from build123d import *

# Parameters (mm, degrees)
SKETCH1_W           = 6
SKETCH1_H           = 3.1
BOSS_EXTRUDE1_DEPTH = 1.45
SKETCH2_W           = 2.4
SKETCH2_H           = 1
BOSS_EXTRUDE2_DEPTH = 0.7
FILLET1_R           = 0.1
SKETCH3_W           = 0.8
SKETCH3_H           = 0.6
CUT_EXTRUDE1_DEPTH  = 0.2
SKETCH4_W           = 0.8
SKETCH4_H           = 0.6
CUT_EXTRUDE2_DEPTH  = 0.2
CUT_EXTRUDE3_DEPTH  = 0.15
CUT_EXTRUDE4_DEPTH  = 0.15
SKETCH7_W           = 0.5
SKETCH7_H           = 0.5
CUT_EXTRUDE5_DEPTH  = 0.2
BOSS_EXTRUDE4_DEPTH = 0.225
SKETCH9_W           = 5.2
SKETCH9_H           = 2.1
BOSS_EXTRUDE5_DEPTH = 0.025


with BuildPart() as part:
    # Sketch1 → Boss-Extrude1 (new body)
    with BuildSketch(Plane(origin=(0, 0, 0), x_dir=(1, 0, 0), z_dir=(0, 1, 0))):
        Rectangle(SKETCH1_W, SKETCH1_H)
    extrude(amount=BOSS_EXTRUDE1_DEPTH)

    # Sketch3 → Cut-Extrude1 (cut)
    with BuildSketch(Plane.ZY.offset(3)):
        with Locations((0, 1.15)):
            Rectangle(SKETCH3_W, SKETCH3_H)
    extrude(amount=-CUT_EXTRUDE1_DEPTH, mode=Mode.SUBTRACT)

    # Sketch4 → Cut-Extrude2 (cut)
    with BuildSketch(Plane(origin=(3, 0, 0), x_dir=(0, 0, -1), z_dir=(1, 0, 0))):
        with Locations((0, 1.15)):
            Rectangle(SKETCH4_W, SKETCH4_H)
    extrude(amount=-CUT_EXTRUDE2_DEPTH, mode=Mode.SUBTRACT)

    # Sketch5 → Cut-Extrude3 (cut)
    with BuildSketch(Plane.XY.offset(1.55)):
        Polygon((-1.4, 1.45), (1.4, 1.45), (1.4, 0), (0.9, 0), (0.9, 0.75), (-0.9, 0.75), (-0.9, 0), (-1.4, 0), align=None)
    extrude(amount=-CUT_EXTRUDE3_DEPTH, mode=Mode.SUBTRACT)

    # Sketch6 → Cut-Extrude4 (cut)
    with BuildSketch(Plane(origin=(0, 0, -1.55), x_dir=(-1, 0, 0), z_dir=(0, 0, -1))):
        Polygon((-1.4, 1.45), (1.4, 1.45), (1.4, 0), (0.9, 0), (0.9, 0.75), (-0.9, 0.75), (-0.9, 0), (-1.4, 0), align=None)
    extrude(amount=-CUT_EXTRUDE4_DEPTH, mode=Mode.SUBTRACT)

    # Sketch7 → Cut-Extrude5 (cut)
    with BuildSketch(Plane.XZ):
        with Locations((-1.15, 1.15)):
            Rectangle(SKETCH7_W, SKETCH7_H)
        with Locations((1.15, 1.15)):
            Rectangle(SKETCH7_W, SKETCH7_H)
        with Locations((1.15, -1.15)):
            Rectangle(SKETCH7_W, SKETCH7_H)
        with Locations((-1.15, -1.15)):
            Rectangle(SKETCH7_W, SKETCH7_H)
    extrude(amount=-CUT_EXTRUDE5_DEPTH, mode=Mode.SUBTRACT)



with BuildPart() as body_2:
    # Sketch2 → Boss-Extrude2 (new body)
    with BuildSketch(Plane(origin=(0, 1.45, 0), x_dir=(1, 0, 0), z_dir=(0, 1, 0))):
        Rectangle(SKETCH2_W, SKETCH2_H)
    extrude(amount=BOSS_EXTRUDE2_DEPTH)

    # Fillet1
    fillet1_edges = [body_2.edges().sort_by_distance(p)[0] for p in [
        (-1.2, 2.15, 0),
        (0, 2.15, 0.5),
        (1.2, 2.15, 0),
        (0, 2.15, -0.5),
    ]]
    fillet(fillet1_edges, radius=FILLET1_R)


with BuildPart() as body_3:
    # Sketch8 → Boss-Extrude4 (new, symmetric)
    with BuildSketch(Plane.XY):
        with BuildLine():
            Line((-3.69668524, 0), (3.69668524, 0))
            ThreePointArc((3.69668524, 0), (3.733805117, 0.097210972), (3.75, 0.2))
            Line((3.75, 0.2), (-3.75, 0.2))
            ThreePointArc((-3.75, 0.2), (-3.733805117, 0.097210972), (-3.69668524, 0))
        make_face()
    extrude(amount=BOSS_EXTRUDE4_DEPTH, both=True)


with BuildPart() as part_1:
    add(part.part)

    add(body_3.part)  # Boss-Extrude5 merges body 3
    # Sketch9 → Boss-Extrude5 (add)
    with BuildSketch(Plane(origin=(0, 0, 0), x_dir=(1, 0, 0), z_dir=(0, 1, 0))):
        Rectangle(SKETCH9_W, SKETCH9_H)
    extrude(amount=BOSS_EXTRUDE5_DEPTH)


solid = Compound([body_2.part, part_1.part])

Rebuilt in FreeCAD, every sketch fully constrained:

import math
import FreeCAD as App
import Part
import Sketcher

V = App.Vector
Q = App.Units.Quantity


def edges_at(feature, points):
    """Names of the edges that pass closest to the given points."""
    edges = feature.Shape.Edges
    near = lambda p: min(range(len(edges)), key=lambda i: edges[i].distToShape(Part.Vertex(*p))[0])
    return sorted({f"Edge{near(p) + 1}" for p in points})

doc = App.newDocument("Part")
body = doc.addObject("PartDesign::Body", "Body")

sketch1 = body.newObject("Sketcher::SketchObject", "Sketch")
sketch1.AttachmentSupport = (doc.getObject("XZ_Plane"), [""])
sketch1.MapMode = "FlatFace"
sketch1.addGeometry(Part.LineSegment(V(-3, -1.6, 0), V(-3, 1.6, 0)), False)
sketch1.addGeometry(Part.LineSegment(V(-3, 1.6, 0), V(3, 1.6, 0)), False)
sketch1.addGeometry(Part.LineSegment(V(3, 1.6, 0), V(3, -1.6, 0)), False)
sketch1.addGeometry(Part.LineSegment(V(3, -1.6, 0), V(-3, -1.6, 0)), False)
sketch1.addConstraint(Sketcher.Constraint("Coincident", 0, 2, 1, 1))
sketch1.addConstraint(Sketcher.Constraint("Coincident", 1, 2, 2, 1))
sketch1.addConstraint(Sketcher.Constraint("Coincident", 2, 2, 3, 1))
sketch1.addConstraint(Sketcher.Constraint("Coincident", 3, 2, 0, 1))
sketch1.addConstraint(Sketcher.Constraint("Vertical", 0))
sketch1.addConstraint(Sketcher.Constraint("Horizontal", 1))
sketch1.addConstraint(Sketcher.Constraint("Vertical", 2))
sketch1.addConstraint(Sketcher.Constraint("Horizontal", 3))
sketch1.addConstraint(Sketcher.Constraint("Symmetric", 0, 2, 2, 2, -1, 1))
sketch1.addConstraint(Sketcher.Constraint("DistanceX", 1, 1, 1, 2, Q("6 mm")))
sketch1.addConstraint(Sketcher.Constraint("DistanceY", 0, 1, 0, 2, Q("3.1 mm")))
pad1 = body.newObject("PartDesign::Pad", "Pad")
pad1.Profile = sketch1
pad1.Length = 1.45
pad1.Reversed = True

sketch2 = body.newObject("Sketcher::SketchObject", "Sketch001")
sketch2.AttachmentSupport = (doc.getObject("YZ_Plane"), [""])
sketch2.MapMode = "FlatFace"
sketch2.AttachmentOffset = App.Placement(V(0, 0, -3), App.Rotation())
sketch2.addGeometry(Part.LineSegment(V(1.4, -0.4, 0), V(0.8, -0.4, 0)), False)
sketch2.addGeometry(Part.LineSegment(V(0.8, -0.4, 0), V(0.8, 0.4, 0)), False)
sketch2.addGeometry(Part.LineSegment(V(0.8, 0.4, 0), V(1.4, 0.4, 0)), False)
sketch2.addGeometry(Part.LineSegment(V(1.4, 0.4, 0), V(1.4, -0.4, 0)), False)
sketch2.addConstraint(Sketcher.Constraint("Coincident", 0, 2, 1, 1))
sketch2.addConstraint(Sketcher.Constraint("Coincident", 1, 2, 2, 1))
sketch2.addConstraint(Sketcher.Constraint("Coincident", 2, 2, 3, 1))
sketch2.addConstraint(Sketcher.Constraint("Coincident", 3, 2, 0, 1))
sketch2.addConstraint(Sketcher.Constraint("Horizontal", 0))
sketch2.addConstraint(Sketcher.Constraint("Vertical", 1))
sketch2.addConstraint(Sketcher.Constraint("Horizontal", 2))
sketch2.addConstraint(Sketcher.Constraint("Vertical", 3))
sketch2.addConstraint(Sketcher.Constraint("DistanceX", 0, 2, 0, 1, Q("0.6 mm")))
sketch2.addConstraint(Sketcher.Constraint("DistanceY", 1, 1, 1, 2, Q("0.8 mm")))
sketch2.addConstraint(Sketcher.Constraint("DistanceY", 0, 2, -1, 1, Q("0.4 mm")))
sketch2.addConstraint(Sketcher.Constraint("DistanceX", -1, 1, 0, 2, Q("0.85 mm")))
pocket1 = body.newObject("PartDesign::Pocket", "Pocket")
pocket1.Profile = sketch2
pocket1.Length = 0.2
pocket1.Reversed = True

sketch3 = body.newObject("Sketcher::SketchObject", "Sketch002")
sketch3.AttachmentSupport = (doc.getObject("YZ_Plane"), [""])
sketch3.MapMode = "FlatFace"
sketch3.AttachmentOffset = App.Placement(V(0, 0, 3), App.Rotation())
sketch3.addGeometry(Part.LineSegment(V(1.4, 0.4, 0), V(0.8, 0.4, 0)), False)
sketch3.addGeometry(Part.LineSegment(V(0.8, 0.4, 0), V(0.8, -0.4, 0)), False)
sketch3.addGeometry(Part.LineSegment(V(0.8, -0.4, 0), V(1.4, -0.4, 0)), False)
sketch3.addGeometry(Part.LineSegment(V(1.4, -0.4, 0), V(1.4, 0.4, 0)), False)
sketch3.addConstraint(Sketcher.Constraint("Coincident", 0, 2, 1, 1))
sketch3.addConstraint(Sketcher.Constraint("Coincident", 1, 2, 2, 1))
sketch3.addConstraint(Sketcher.Constraint("Coincident", 2, 2, 3, 1))
sketch3.addConstraint(Sketcher.Constraint("Coincident", 3, 2, 0, 1))
sketch3.addConstraint(Sketcher.Constraint("Horizontal", 0))
sketch3.addConstraint(Sketcher.Constraint("Vertical", 1))
sketch3.addConstraint(Sketcher.Constraint("Horizontal", 2))
sketch3.addConstraint(Sketcher.Constraint("Vertical", 3))
sketch3.addConstraint(Sketcher.Constraint("DistanceX", 0, 2, 0, 1, Q("0.6 mm")))
sketch3.addConstraint(Sketcher.Constraint("DistanceY", 1, 2, 1, 1, Q("0.8 mm")))
sketch3.addConstraint(Sketcher.Constraint("DistanceY", -1, 1, 0, 2, Q("0.4 mm")))
sketch3.addConstraint(Sketcher.Constraint("DistanceX", -1, 1, 0, 2, Q("0.85 mm")))
pocket2 = body.newObject("PartDesign::Pocket", "Pocket001")
pocket2.Profile = sketch3
pocket2.Length = 0.2

sketch4 = body.newObject("Sketcher::SketchObject", "Sketch003")
sketch4.AttachmentSupport = (doc.getObject("XY_Plane"), [""])
sketch4.MapMode = "FlatFace"
sketch4.AttachmentOffset = App.Placement(V(0, 0, 1.55), App.Rotation())
sketch4.addGeometry(Part.LineSegment(V(1.4, 1.45, 0), V(-1.4, 1.45, 0)), False)
sketch4.addGeometry(Part.LineSegment(V(-1.4, 1.45, 0), V(-1.4, 0, 0)), False)
sketch4.addGeometry(Part.LineSegment(V(-1.4, 0, 0), V(-0.9, 0, 0)), False)
sketch4.addGeometry(Part.LineSegment(V(-0.9, 0, 0), V(-0.9, 0.75, 0)), False)
sketch4.addGeometry(Part.LineSegment(V(-0.9, 0.75, 0), V(0.9, 0.75, 0)), False)
sketch4.addGeometry(Part.LineSegment(V(0.9, 0.75, 0), V(0.9, 0, 0)), False)
sketch4.addGeometry(Part.LineSegment(V(0.9, 0, 0), V(1.4, 0, 0)), False)
sketch4.addGeometry(Part.LineSegment(V(1.4, 0, 0), V(1.4, 1.45, 0)), False)
sketch4.addConstraint(Sketcher.Constraint("Coincident", 0, 2, 1, 1))
sketch4.addConstraint(Sketcher.Constraint("Coincident", 1, 2, 2, 1))
sketch4.addConstraint(Sketcher.Constraint("Coincident", 2, 2, 3, 1))
sketch4.addConstraint(Sketcher.Constraint("Coincident", 3, 2, 4, 1))
sketch4.addConstraint(Sketcher.Constraint("Coincident", 4, 2, 5, 1))
sketch4.addConstraint(Sketcher.Constraint("Coincident", 5, 2, 6, 1))
sketch4.addConstraint(Sketcher.Constraint("Coincident", 6, 2, 7, 1))
sketch4.addConstraint(Sketcher.Constraint("Coincident", 7, 2, 0, 1))
sketch4.addConstraint(Sketcher.Constraint("Horizontal", 0))
sketch4.addConstraint(Sketcher.Constraint("Vertical", 1))
sketch4.addConstraint(Sketcher.Constraint("Horizontal", 2))
sketch4.addConstraint(Sketcher.Constraint("Vertical", 3))
sketch4.addConstraint(Sketcher.Constraint("Horizontal", 4))
sketch4.addConstraint(Sketcher.Constraint("Vertical", 5))
sketch4.addConstraint(Sketcher.Constraint("Horizontal", 6))
sketch4.addConstraint(Sketcher.Constraint("Vertical", 7))
sketch4.addConstraint(Sketcher.Constraint("Symmetric", 2, 2, 5, 2, -1, 1))
sketch4.addConstraint(Sketcher.Constraint("Symmetric", 1, 2, 6, 2, -2))
sketch4.addConstraint(Sketcher.Constraint("DistanceX", 0, 2, 0, 1, Q("2.8 mm")))
sketch4.addConstraint(Sketcher.Constraint("DistanceX", 2, 1, 2, 2, Q("0.5 mm")))
sketch4.addConstraint(Sketcher.Constraint("DistanceY", 1, 2, 1, 1, Q("1.45 mm")))
sketch4.addConstraint(Sketcher.Constraint("DistanceY", 3, 1, 3, 2, Q("0.75 mm")))
pocket3 = body.newObject("PartDesign::Pocket", "Pocket002")
pocket3.Profile = sketch4
pocket3.Length = 0.15

sketch5 = body.newObject("Sketcher::SketchObject", "Sketch004")
sketch5.AttachmentSupport = (doc.getObject("XY_Plane"), [""])
sketch5.MapMode = "FlatFace"
sketch5.AttachmentOffset = App.Placement(V(0, 0, -1.55), App.Rotation())
sketch5.addGeometry(Part.LineSegment(V(-1.4, 1.45, 0), V(1.4, 1.45, 0)), False)
sketch5.addGeometry(Part.LineSegment(V(1.4, 1.45, 0), V(1.4, 0, 0)), False)
sketch5.addGeometry(Part.LineSegment(V(1.4, 0, 0), V(0.9, 0, 0)), False)
sketch5.addGeometry(Part.LineSegment(V(0.9, 0, 0), V(0.9, 0.75, 0)), False)
sketch5.addGeometry(Part.LineSegment(V(0.9, 0.75, 0), V(-0.9, 0.75, 0)), False)
sketch5.addGeometry(Part.LineSegment(V(-0.9, 0.75, 0), V(-0.9, 0, 0)), False)
sketch5.addGeometry(Part.LineSegment(V(-0.9, 0, 0), V(-1.4, 0, 0)), False)
sketch5.addGeometry(Part.LineSegment(V(-1.4, 0, 0), V(-1.4, 1.45, 0)), False)
sketch5.addConstraint(Sketcher.Constraint("Coincident", 0, 2, 1, 1))
sketch5.addConstraint(Sketcher.Constraint("Coincident", 1, 2, 2, 1))
sketch5.addConstraint(Sketcher.Constraint("Coincident", 2, 2, 3, 1))
sketch5.addConstraint(Sketcher.Constraint("Coincident", 3, 2, 4, 1))
sketch5.addConstraint(Sketcher.Constraint("Coincident", 4, 2, 5, 1))
sketch5.addConstraint(Sketcher.Constraint("Coincident", 5, 2, 6, 1))
sketch5.addConstraint(Sketcher.Constraint("Coincident", 6, 2, 7, 1))
sketch5.addConstraint(Sketcher.Constraint("Coincident", 7, 2, 0, 1))
sketch5.addConstraint(Sketcher.Constraint("Horizontal", 0))
sketch5.addConstraint(Sketcher.Constraint("Vertical", 1))
sketch5.addConstraint(Sketcher.Constraint("Horizontal", 2))
sketch5.addConstraint(Sketcher.Constraint("Vertical", 3))
sketch5.addConstraint(Sketcher.Constraint("Horizontal", 4))
sketch5.addConstraint(Sketcher.Constraint("Vertical", 5))
sketch5.addConstraint(Sketcher.Constraint("Horizontal", 6))
sketch5.addConstraint(Sketcher.Constraint("Vertical", 7))
sketch5.addConstraint(Sketcher.Constraint("Symmetric", 2, 2, 5, 2, -1, 1))
sketch5.addConstraint(Sketcher.Constraint("Symmetric", 1, 2, 6, 2, -2))
sketch5.addConstraint(Sketcher.Constraint("DistanceX", 0, 1, 0, 2, Q("2.8 mm")))
sketch5.addConstraint(Sketcher.Constraint("DistanceX", 2, 2, 2, 1, Q("0.5 mm")))
sketch5.addConstraint(Sketcher.Constraint("DistanceY", 1, 2, 1, 1, Q("1.45 mm")))
sketch5.addConstraint(Sketcher.Constraint("DistanceY", 3, 1, 3, 2, Q("0.75 mm")))
pocket4 = body.newObject("PartDesign::Pocket", "Pocket003")
pocket4.Profile = sketch5
pocket4.Length = 0.15
pocket4.Reversed = True

sketch6 = body.newObject("Sketcher::SketchObject", "Sketch005")
sketch6.AttachmentSupport = (doc.getObject("XZ_Plane"), [""])
sketch6.MapMode = "FlatFace"
sketch6.addGeometry(Part.LineSegment(V(-1.4, 1.4, 0), V(-1.4, 0.9, 0)), False)
sketch6.addGeometry(Part.LineSegment(V(-1.4, 0.9, 0), V(-0.9, 0.9, 0)), False)
sketch6.addGeometry(Part.LineSegment(V(-0.9, 0.9, 0), V(-0.9, 1.4, 0)), False)
sketch6.addGeometry(Part.LineSegment(V(-0.9, 1.4, 0), V(-1.4, 1.4, 0)), False)
sketch6.addGeometry(Part.LineSegment(V(0.9, 1.4, 0), V(0.9, 0.9, 0)), False)
sketch6.addGeometry(Part.LineSegment(V(0.9, 0.9, 0), V(1.4, 0.9, 0)), False)
sketch6.addGeometry(Part.LineSegment(V(1.4, 0.9, 0), V(1.4, 1.4, 0)), False)
sketch6.addGeometry(Part.LineSegment(V(1.4, 1.4, 0), V(0.9, 1.4, 0)), False)
sketch6.addGeometry(Part.LineSegment(V(0.9, -0.9, 0), V(0.9, -1.4, 0)), False)
sketch6.addGeometry(Part.LineSegment(V(0.9, -1.4, 0), V(1.4, -1.4, 0)), False)
sketch6.addGeometry(Part.LineSegment(V(1.4, -1.4, 0), V(1.4, -0.9, 0)), False)
sketch6.addGeometry(Part.LineSegment(V(1.4, -0.9, 0), V(0.9, -0.9, 0)), False)
sketch6.addGeometry(Part.LineSegment(V(-1.4, -0.9, 0), V(-1.4, -1.4, 0)), False)
sketch6.addGeometry(Part.LineSegment(V(-1.4, -1.4, 0), V(-0.9, -1.4, 0)), False)
sketch6.addGeometry(Part.LineSegment(V(-0.9, -1.4, 0), V(-0.9, -0.9, 0)), False)
sketch6.addGeometry(Part.LineSegment(V(-0.9, -0.9, 0), V(-1.4, -0.9, 0)), False)
sketch6.addConstraint(Sketcher.Constraint("Coincident", 0, 2, 1, 1))
sketch6.addConstraint(Sketcher.Constraint("Coincident", 1, 2, 2, 1))
sketch6.addConstraint(Sketcher.Constraint("Coincident", 2, 2, 3, 1))
sketch6.addConstraint(Sketcher.Constraint("Coincident", 3, 2, 0, 1))
sketch6.addConstraint(Sketcher.Constraint("Coincident", 4, 2, 5, 1))
sketch6.addConstraint(Sketcher.Constraint("Coincident", 5, 2, 6, 1))
sketch6.addConstraint(Sketcher.Constraint("Coincident", 6, 2, 7, 1))
sketch6.addConstraint(Sketcher.Constraint("Coincident", 7, 2, 4, 1))
sketch6.addConstraint(Sketcher.Constraint("Coincident", 8, 2, 9, 1))
sketch6.addConstraint(Sketcher.Constraint("Coincident", 9, 2, 10, 1))
sketch6.addConstraint(Sketcher.Constraint("Coincident", 10, 2, 11, 1))
sketch6.addConstraint(Sketcher.Constraint("Coincident", 11, 2, 8, 1))
sketch6.addConstraint(Sketcher.Constraint("Coincident", 12, 2, 13, 1))
sketch6.addConstraint(Sketcher.Constraint("Coincident", 13, 2, 14, 1))
sketch6.addConstraint(Sketcher.Constraint("Coincident", 14, 2, 15, 1))
sketch6.addConstraint(Sketcher.Constraint("Coincident", 15, 2, 12, 1))
sketch6.addConstraint(Sketcher.Constraint("Vertical", 0))
sketch6.addConstraint(Sketcher.Constraint("Horizontal", 1))
sketch6.addConstraint(Sketcher.Constraint("Vertical", 2))
sketch6.addConstraint(Sketcher.Constraint("Horizontal", 3))
sketch6.addConstraint(Sketcher.Constraint("Vertical", 4))
sketch6.addConstraint(Sketcher.Constraint("Horizontal", 5))
sketch6.addConstraint(Sketcher.Constraint("Vertical", 6))
sketch6.addConstraint(Sketcher.Constraint("Horizontal", 7))
sketch6.addConstraint(Sketcher.Constraint("Vertical", 8))
sketch6.addConstraint(Sketcher.Constraint("Horizontal", 9))
sketch6.addConstraint(Sketcher.Constraint("Vertical", 10))
sketch6.addConstraint(Sketcher.Constraint("Horizontal", 11))
sketch6.addConstraint(Sketcher.Constraint("Vertical", 12))
sketch6.addConstraint(Sketcher.Constraint("Horizontal", 13))
sketch6.addConstraint(Sketcher.Constraint("Vertical", 14))
sketch6.addConstraint(Sketcher.Constraint("Horizontal", 15))
sketch6.addConstraint(Sketcher.Constraint("Symmetric", 2, 2, 8, 2, -1, 1))
sketch6.addConstraint(Sketcher.Constraint("Symmetric", 0, 2, 10, 2, -1, 1))
sketch6.addConstraint(Sketcher.Constraint("Symmetric", 6, 2, 12, 2, -1, 1))
sketch6.addConstraint(Sketcher.Constraint("Symmetric", 4, 2, 14, 2, -1, 1))
sketch6.addConstraint(Sketcher.Constraint("Symmetric", 1, 2, 4, 2, -2))
sketch6.addConstraint(Sketcher.Constraint("Symmetric", 3, 2, 6, 2, -2))
sketch6.addConstraint(Sketcher.Constraint("Equal", 15, 0))
sketch6.addConstraint(Sketcher.Constraint("DistanceX", 1, 1, 1, 2, Q("0.5 mm")))
sketch6.addConstraint(Sketcher.Constraint("DistanceX", 0, 2, -1, 1, Q("1.4 mm")))
sketch6.addConstraint(Sketcher.Constraint("DistanceY", -1, 1, 0, 2, Q("0.9 mm")))
pocket5 = body.newObject("PartDesign::Pocket", "Pocket004")
pocket5.Profile = sketch6
pocket5.Length = 0.2
body2 = doc.addObject("PartDesign::Body", "Body001")

sketch7 = body2.newObject("Sketcher::SketchObject", "Sketch006")
sketch7.AttachmentSupport = (doc.getObject("XZ_Plane001"), [""])
sketch7.MapMode = "FlatFace"
sketch7.AttachmentOffset = App.Placement(V(0, 0, -1.45), App.Rotation())
sketch7.addGeometry(Part.LineSegment(V(-1.2, -0.5, 0), V(-1.2, 0.5, 0)), False)
sketch7.addGeometry(Part.LineSegment(V(-1.2, 0.5, 0), V(1.2, 0.5, 0)), False)
sketch7.addGeometry(Part.LineSegment(V(1.2, 0.5, 0), V(1.2, -0.5, 0)), False)
sketch7.addGeometry(Part.LineSegment(V(1.2, -0.5, 0), V(-1.2, -0.5, 0)), False)
sketch7.addConstraint(Sketcher.Constraint("Coincident", 0, 2, 1, 1))
sketch7.addConstraint(Sketcher.Constraint("Coincident", 1, 2, 2, 1))
sketch7.addConstraint(Sketcher.Constraint("Coincident", 2, 2, 3, 1))
sketch7.addConstraint(Sketcher.Constraint("Coincident", 3, 2, 0, 1))
sketch7.addConstraint(Sketcher.Constraint("Vertical", 0))
sketch7.addConstraint(Sketcher.Constraint("Horizontal", 1))
sketch7.addConstraint(Sketcher.Constraint("Vertical", 2))
sketch7.addConstraint(Sketcher.Constraint("Horizontal", 3))
sketch7.addConstraint(Sketcher.Constraint("Symmetric", 0, 2, 2, 2, -1, 1))
sketch7.addConstraint(Sketcher.Constraint("DistanceY", 0, 1, 0, 2, Q("1 mm")))
sketch7.addConstraint(Sketcher.Constraint("DistanceX", 1, 1, 1, 2, Q("2.4 mm")))
pad2 = body2.newObject("PartDesign::Pad", "Pad001")
pad2.Profile = sketch7
pad2.Length = 0.7
pad2.Reversed = True
doc.recompute()

fillet = body2.newObject("PartDesign::Fillet", "Fillet")
fillet.Base = (pad2, edges_at(pad2, [
    (-1.2, 2.15, 0),
    (0, 2.15, 0.5),
    (1.2, 2.15, 0),
    (0, 2.15, -0.5),
]))
fillet.Radius = 0.1
body3 = doc.addObject("PartDesign::Body", "Body002")

sketch8 = body3.newObject("Sketcher::SketchObject", "Sketch007")
sketch8.AttachmentSupport = (doc.getObject("XY_Plane002"), [""])
sketch8.MapMode = "FlatFace"
sketch8.addGeometry(Part.LineSegment(V(-3.7, 0, 0), V(3.7, 0, 0)), False)
sketch8.addGeometry(Part.ArcOfCircle(Part.Circle(V(3.25, 0.23, 0), V(0, 0, 1), 0.5), math.radians(-27), math.radians(-3)), False)
sketch8.addGeometry(Part.LineSegment(V(3.75, 0.2, 0), V(-3.75, 0.2, 0)), False)
sketch8.addGeometry(Part.ArcOfCircle(Part.Circle(V(-3.25, 0.23, 0), V(0, 0, 1), 0.5), math.radians(-177), math.radians(-153)), False)
sketch8.addConstraint(Sketcher.Constraint("Coincident", 0, 2, 1, 1))
sketch8.addConstraint(Sketcher.Constraint("Coincident", 1, 2, 2, 1))
sketch8.addConstraint(Sketcher.Constraint("Coincident", 2, 2, 3, 1))
sketch8.addConstraint(Sketcher.Constraint("Coincident", 3, 2, 0, 1))
sketch8.addConstraint(Sketcher.Constraint("Horizontal", 0))
sketch8.addConstraint(Sketcher.Constraint("Horizontal", 2))
sketch8.addConstraint(Sketcher.Constraint("Equal", 1, 3))
sketch8.addConstraint(Sketcher.Constraint("Symmetric", 0, 2, 3, 2, -1, 1))
sketch8.addConstraint(Sketcher.Constraint("Horizontal", 1, 3, 3, 3))
sketch8.addConstraint(Sketcher.Constraint("Radius", 1, Q("0.5 mm")))
sketch8.addConstraint(Sketcher.Constraint("DistanceX", 2, 2, 2, 1, Q("7.5 mm")))
sketch8.addConstraint(Sketcher.Constraint("DistanceY", -1, 1, 1, 2, Q("0.2 mm")))
sketch8.addConstraint(Sketcher.Constraint("DistanceY", -1, 1, 1, 3, Q("0.226 mm")))
pad3 = body3.newObject("PartDesign::Pad", "Pad002")
pad3.Profile = sketch8
pad3.Length = 0.45
pad3.Midplane = True
doc.recompute()

boolean = body.newObject("PartDesign::Boolean", "Boolean")
boolean.Type = "Fuse"
boolean.addObjects([body3])

sketch9 = body.newObject("Sketcher::SketchObject", "Sketch008")
sketch9.AttachmentSupport = (doc.getObject("XZ_Plane"), [""])
sketch9.MapMode = "FlatFace"
sketch9.addGeometry(Part.LineSegment(V(-2.6, -1.1, 0), V(-2.6, 1.1, 0)), False)
sketch9.addGeometry(Part.LineSegment(V(-2.6, 1.1, 0), V(2.6, 1.1, 0)), False)
sketch9.addGeometry(Part.LineSegment(V(2.6, 1.1, 0), V(2.6, -1.1, 0)), False)
sketch9.addGeometry(Part.LineSegment(V(2.6, -1.1, 0), V(-2.6, -1.1, 0)), False)
sketch9.addConstraint(Sketcher.Constraint("Coincident", 0, 2, 1, 1))
sketch9.addConstraint(Sketcher.Constraint("Coincident", 1, 2, 2, 1))
sketch9.addConstraint(Sketcher.Constraint("Coincident", 2, 2, 3, 1))
sketch9.addConstraint(Sketcher.Constraint("Coincident", 3, 2, 0, 1))
sketch9.addConstraint(Sketcher.Constraint("Vertical", 0))
sketch9.addConstraint(Sketcher.Constraint("Horizontal", 1))
sketch9.addConstraint(Sketcher.Constraint("Vertical", 2))
sketch9.addConstraint(Sketcher.Constraint("Horizontal", 3))
sketch9.addConstraint(Sketcher.Constraint("Symmetric", 0, 2, 2, 2, -1, 1))
sketch9.addConstraint(Sketcher.Constraint("DistanceX", 1, 1, 1, 2, Q("5.2 mm")))
sketch9.addConstraint(Sketcher.Constraint("DistanceY", 0, 1, 0, 2, Q("2.1 mm")))
pad4 = body.newObject("PartDesign::Pad", "Pad003")
pad4.Profile = sketch9
pad4.Length = 0.025
pad4.Reversed = True

doc.recompute()
